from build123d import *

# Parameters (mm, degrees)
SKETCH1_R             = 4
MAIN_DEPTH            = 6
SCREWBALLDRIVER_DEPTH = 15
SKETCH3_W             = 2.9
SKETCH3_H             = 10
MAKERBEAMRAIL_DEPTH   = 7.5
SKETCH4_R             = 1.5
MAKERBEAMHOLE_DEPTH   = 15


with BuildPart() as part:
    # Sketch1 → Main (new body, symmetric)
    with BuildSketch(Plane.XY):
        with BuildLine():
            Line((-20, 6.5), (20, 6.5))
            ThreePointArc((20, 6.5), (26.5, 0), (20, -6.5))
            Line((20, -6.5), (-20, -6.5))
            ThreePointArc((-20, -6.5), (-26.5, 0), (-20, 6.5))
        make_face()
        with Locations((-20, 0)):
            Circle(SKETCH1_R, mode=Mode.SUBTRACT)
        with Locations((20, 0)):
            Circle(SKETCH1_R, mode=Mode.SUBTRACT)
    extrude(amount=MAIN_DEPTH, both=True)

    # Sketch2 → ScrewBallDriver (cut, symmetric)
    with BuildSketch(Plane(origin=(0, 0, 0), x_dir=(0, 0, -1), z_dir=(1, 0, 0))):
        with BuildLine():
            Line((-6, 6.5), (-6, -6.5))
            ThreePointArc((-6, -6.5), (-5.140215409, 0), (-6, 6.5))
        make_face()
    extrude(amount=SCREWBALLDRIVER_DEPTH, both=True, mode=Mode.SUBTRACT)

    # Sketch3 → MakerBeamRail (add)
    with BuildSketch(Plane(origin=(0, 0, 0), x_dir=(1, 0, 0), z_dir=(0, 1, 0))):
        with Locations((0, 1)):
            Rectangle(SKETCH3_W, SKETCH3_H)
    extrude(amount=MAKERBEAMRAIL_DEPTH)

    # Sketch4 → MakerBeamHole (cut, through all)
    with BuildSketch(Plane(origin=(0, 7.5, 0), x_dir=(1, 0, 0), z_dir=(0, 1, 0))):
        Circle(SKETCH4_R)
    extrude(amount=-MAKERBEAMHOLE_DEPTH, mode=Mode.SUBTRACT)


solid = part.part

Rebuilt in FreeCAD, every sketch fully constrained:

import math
import FreeCAD as App
import Part
import Sketcher

V = App.Vector
Q = App.Units.Quantity

doc = App.newDocument("Part")
body = doc.addObject("PartDesign::Body", "Body")

# Sketch on XY plane
sketch1 = body.newObject("Sketcher::SketchObject", "Sketch")
sketch1.AttachmentSupport = (doc.getObject("XY_Plane"), [""])
sketch1.MapMode = "FlatFace"
sketch1.addGeometry([
    Part.LineSegment(V(20, 6.5, 0), V(-20, 6.5, 0)),  # 0
    Part.ArcOfCircle(Part.Circle(V(-20, 0, 0), V(0, 0, 1), 6.5), math.radians(90), math.radians(270)),  # 1
    Part.LineSegment(V(-20, -6.5, 0), V(20, -6.5, 0)),  # 2
    Part.ArcOfCircle(Part.Circle(V(20, 0, 0), V(0, 0, 1), 6.5), math.radians(-90), math.radians(90)),  # 3
    Part.Circle(V(20, 0, 0), V(0, 0, 1), 4),  # 4
    Part.Circle(V(-20, 0, 0), V(0, 0, 1), 4),  # 5
], False)
sketch1.addConstraint([
    Sketcher.Constraint("Tangent", 0, 2, 1, 1),
    Sketcher.Constraint("Tangent", 1, 2, 2, 1),
    Sketcher.Constraint("Tangent", 2, 2, 3, 1),
    Sketcher.Constraint("Tangent", 3, 2, 0, 1),
    Sketcher.Constraint("Horizontal", 0),
    Sketcher.Constraint("Horizontal", 2),
    Sketcher.Constraint("Coincident", 4, 3, 3, 3),
    Sketcher.Constraint("Coincident", 5, 3, 1, 3),
    Sketcher.Constraint("Equal", 4, 5),
    Sketcher.Constraint("Symmetric", 1, 3, 3, 3, -1, 1),
    Sketcher.Constraint("Diameter", 4, Q("8 mm")),
    Sketcher.Constraint("Radius", 1, Q("6.5 mm")),
    Sketcher.Constraint("DistanceX", 0, 2, 0, 1, Q("40 mm")),
])
pad1 = body.newObject("PartDesign::Pad", "Pad")
pad1.Profile = sketch1
pad1.Length = 12
pad1.Midplane = True

# Sketch on YZ plane
sketch2 = body.newObject("Sketcher::SketchObject", "Sketch001")
sketch2.AttachmentSupport = (doc.getObject("YZ_Plane"), [""])
sketch2.MapMode = "FlatFace"
sketch2.addGeometry([
    Part.LineSegment(V(6, 6, 0), V(-6, 6, 0)),
    Part.ArcOfCircle(Part.Circle(V(0, 30, 0), V(0, 0, 1), 25), math.radians(-105), math.radians(-75)),
], False)
sketch2.addConstraint([
    Sketcher.Constraint("Coincident", 0, 1, 1, 2),
    Sketcher.Constraint("Coincident", 1, 1, 0, 2),
    Sketcher.Constraint("Horizontal", 0),
    Sketcher.Constraint("PointOnObject", 1, 3, -2),
    Sketcher.Constraint("Radius", 1, Q("25 mm")),
    Sketcher.Constraint("DistanceX", 0, 2, 0, 1, Q("13 mm")),
    Sketcher.Constraint("DistanceY", -1, 1, 0, 1, Q("6 mm")),
])
pocket1 = body.newObject("PartDesign::Pocket", "Pocket")
pocket1.Profile = sketch2
pocket1.Length = 30
pocket1.Midplane = True

# Sketch on XZ plane
sketch3 = body.newObject("Sketcher::SketchObject", "Sketch002")
sketch3.AttachmentSupport = (doc.getObject("XZ_Plane"), [""])
sketch3.MapMode = "FlatFace"
sketch3.addGeometry([
    Part.LineSegment(V(-1.4, -6, 0), V(-1.4, 4, 0)),
    Part.LineSegment(V(-1.4, 4, 0), V(1.4, 4, 0)),
    Part.LineSegment(V(1.4, 4, 0), V(1.4, -6, 0)),
    Part.LineSegment(V(1.4, -6, 0), V(-1.4, -6, 0)),
], False)
sketch3.addConstraint([
    Sketcher.Constraint("Coincident", 0, 2, 1, 1),
    Sketcher.Constraint("Coincident", 1, 2, 2, 1),
    Sketcher.Constraint("Coincident", 2, 2, 3, 1),
    Sketcher.Constraint("Coincident", 3, 2, 0, 1),
    Sketcher.Constraint("Vertical", 0),
    Sketcher.Constraint("Horizontal", 1),
    Sketcher.Constraint("Vertical", 2),
    Sketcher.Constraint("Horizontal", 3),
    Sketcher.Constraint("DistanceY", 0, 1, 0, 2, Q("10 mm")),
    Sketcher.Constraint("DistanceX", 1, 1, 1, 2, Q("2.9 mm")),
    Sketcher.Constraint("DistanceY", -1, 1, 0, 2, Q("4 mm")),
    Sketcher.Constraint("DistanceX", 0, 2, -1, 1, Q("1.45 mm")),
])
pad2 = body.newObject("PartDesign::Pad", "Pad001")
pad2.Profile = sketch3
pad2.Length = 7.5
pad2.Reversed = True

# Sketch on XZ plane
sketch4 = body.newObject("Sketcher::SketchObject", "Sketch003")
sketch4.AttachmentSupport = (doc.getObject("XZ_Plane"), [""])
sketch4.MapMode = "FlatFace"
sketch4.AttachmentOffset = App.Placement(V(0, 0, -7.5), App.Rotation())
sketch4.addGeometry(Part.Circle(V(0, 0, 0), V(0, 0, 1), 1.5), False)
sketch4.addConstraint([
    Sketcher.Constraint("Coincident", 0, 3, -1, 1),
    Sketcher.Constraint("Diameter", 0, Q("3 mm")),
])
pocket2 = body.newObject("PartDesign::Pocket", "Pocket001")
pocket2.Profile = sketch4
pocket2.Type = "ThroughAll"
pocket2.Reversed = True

doc.recompute()
